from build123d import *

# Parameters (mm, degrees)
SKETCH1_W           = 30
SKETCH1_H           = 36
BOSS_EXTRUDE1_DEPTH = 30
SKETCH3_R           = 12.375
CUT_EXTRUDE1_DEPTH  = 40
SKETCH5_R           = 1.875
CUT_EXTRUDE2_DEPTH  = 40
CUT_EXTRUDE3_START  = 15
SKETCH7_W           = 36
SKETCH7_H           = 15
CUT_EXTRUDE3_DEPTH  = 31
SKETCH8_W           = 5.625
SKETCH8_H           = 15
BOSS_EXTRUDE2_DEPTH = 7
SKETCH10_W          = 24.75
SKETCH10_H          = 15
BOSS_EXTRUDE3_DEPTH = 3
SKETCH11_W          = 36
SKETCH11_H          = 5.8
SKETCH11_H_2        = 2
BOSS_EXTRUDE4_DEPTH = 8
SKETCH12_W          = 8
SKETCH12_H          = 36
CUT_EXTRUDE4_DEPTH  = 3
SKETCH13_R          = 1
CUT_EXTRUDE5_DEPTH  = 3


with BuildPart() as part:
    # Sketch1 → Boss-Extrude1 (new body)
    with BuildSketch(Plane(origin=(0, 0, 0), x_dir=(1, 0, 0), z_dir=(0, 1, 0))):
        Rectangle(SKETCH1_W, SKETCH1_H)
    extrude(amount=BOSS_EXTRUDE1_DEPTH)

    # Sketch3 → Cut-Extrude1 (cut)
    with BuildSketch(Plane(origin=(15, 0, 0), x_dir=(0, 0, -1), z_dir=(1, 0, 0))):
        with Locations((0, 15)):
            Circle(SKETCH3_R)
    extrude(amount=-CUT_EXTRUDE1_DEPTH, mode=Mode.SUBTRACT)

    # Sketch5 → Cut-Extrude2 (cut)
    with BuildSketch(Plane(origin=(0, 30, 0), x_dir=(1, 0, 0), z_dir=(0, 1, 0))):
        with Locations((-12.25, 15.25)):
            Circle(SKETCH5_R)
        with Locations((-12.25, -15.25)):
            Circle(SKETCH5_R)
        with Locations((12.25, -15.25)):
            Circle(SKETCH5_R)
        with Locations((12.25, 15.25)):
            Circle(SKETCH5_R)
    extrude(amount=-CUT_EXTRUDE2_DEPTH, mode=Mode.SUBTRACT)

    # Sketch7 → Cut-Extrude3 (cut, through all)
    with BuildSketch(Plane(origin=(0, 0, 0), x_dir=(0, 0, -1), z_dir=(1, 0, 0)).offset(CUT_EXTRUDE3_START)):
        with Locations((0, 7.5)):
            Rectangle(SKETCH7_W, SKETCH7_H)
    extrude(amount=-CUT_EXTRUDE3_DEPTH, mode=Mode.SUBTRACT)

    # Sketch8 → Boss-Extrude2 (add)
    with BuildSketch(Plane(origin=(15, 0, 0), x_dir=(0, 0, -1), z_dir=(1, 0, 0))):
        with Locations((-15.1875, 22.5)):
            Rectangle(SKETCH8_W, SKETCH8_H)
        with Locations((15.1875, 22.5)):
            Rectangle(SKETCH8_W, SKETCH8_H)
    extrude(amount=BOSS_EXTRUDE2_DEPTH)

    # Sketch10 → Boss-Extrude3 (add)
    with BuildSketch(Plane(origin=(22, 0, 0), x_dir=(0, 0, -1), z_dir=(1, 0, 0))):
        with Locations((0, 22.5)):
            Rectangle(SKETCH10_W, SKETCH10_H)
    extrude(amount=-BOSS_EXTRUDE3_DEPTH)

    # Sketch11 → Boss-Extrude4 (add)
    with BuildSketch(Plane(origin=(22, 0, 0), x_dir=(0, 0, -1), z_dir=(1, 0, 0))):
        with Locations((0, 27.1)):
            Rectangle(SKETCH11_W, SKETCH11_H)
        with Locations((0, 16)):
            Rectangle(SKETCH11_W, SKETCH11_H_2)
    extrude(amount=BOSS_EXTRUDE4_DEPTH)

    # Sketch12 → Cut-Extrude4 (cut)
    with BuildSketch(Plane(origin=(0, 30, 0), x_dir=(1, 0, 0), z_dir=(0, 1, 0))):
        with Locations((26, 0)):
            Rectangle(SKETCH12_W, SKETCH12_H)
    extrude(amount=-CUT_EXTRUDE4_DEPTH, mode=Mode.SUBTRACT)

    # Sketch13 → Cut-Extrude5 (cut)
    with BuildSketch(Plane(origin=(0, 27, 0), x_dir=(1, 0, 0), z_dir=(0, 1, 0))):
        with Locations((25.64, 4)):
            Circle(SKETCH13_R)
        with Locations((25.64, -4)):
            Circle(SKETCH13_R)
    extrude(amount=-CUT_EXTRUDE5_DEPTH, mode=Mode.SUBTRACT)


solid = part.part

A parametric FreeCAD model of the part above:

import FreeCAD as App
import Part
import Sketcher
from FreeCAD import Vector
Q = App.Units.Quantity

doc = App.newDocument("Part")
params = doc.addObject("Spreadsheet::Sheet", "Params")
for row, (alias, value) in enumerate([
    ("sketch1_width", "30 mm"),
    ("sketch1_height", "36 mm"),
    ("pad1_length", "30 mm"),
    ("sketch2_diameter", "24.75 mm"),
    ("pocket1_length", "40 mm"),
    ("sketch3_diameter", "3.75 mm"),
    ("pocket2_length", "40 mm"),
    ("sketch4_width", "15 mm"),
    ("sketch4_height", "36 mm"),
    ("sketch5_width", "15 mm"),
    ("pad2_length", "7 mm"),
    ("sketch6_width", "15 mm"),
    ("sketch6_height", "24.75 mm"),
    ("pad3_length", "3 mm"),
    ("sketch7_width", "2 mm"),
    ("sketch7_height", "36 mm"),
    ("sketch7_width2", "5.8 mm"),
    ("pad4_length", "8 mm"),
    ("sketch8_width", "8 mm"),
    ("sketch8_height", "36 mm"),
    ("pocket4_length", "3 mm"),
    ("sketch9_diameter", "2 mm"),
    ("pocket5_length", "3 mm"),
], start=1):
    params.set(f"A{row}", alias)
    params.set(f"B{row}", "=" + value)
    params.setAlias(f"B{row}", alias)

body = doc.addObject("PartDesign::Body", "Body")

# Sketch on XZ plane
sketch1 = body.newObject("Sketcher::SketchObject", "Sketch")
sketch1.AttachmentSupport = (doc.getObject("XZ_Plane"), [""])
sketch1.MapMode = "FlatFace"
sketch1.addGeometry(Part.LineSegment(Vector(-15, -18, 0), Vector(-15, 18, 0)), False)
sketch1.addGeometry(Part.LineSegment(Vector(-15, 18, 0), Vector(15, 18, 0)), False)
sketch1.addGeometry(Part.LineSegment(Vector(15, 18, 0), Vector(15, -18, 0)), False)
sketch1.addGeometry(Part.LineSegment(Vector(15, -18, 0), Vector(-15, -18, 0)), False)
sketch1.addConstraint(Sketcher.Constraint("Coincident", 0, 2, 1, 1))
sketch1.addConstraint(Sketcher.Constraint("Coincident", 1, 2, 2, 1))
sketch1.addConstraint(Sketcher.Constraint("Coincident", 2, 2, 3, 1))
sketch1.addConstraint(Sketcher.Constraint("Coincident", 3, 2, 0, 1))
sketch1.addConstraint(Sketcher.Constraint("Vertical", 0))
sketch1.addConstraint(Sketcher.Constraint("Horizontal", 1))
sketch1.addConstraint(Sketcher.Constraint("Vertical", 2))
sketch1.addConstraint(Sketcher.Constraint("Horizontal", 3))
sketch1.addConstraint(Sketcher.Constraint("Symmetric", 0, 2, 2, 2, -1, 1))
sketch1.addConstraint(Sketcher.Constraint("DistanceX", 1, 1, 1, 2, Q("30 mm")))
sketch1.addConstraint(Sketcher.Constraint("DistanceY", 0, 1, 0, 2, Q("36 mm")))
sketch1.setExpression("Constraints[9]", "Params.sketch1_width")
sketch1.setExpression("Constraints[10]", "Params.sketch1_height")
pad1 = body.newObject("PartDesign::Pad", "Pad")
pad1.Profile = sketch1
pad1.setExpression("Length", "Params.pad1_length")
pad1.Reversed = True

# Sketch on YZ plane
sketch2 = body.newObject("Sketcher::SketchObject", "Sketch001")
sketch2.AttachmentSupport = (doc.getObject("YZ_Plane"), [""])
sketch2.MapMode = "FlatFace"
sketch2.AttachmentOffset = App.Placement(Vector(0, 0, 15), App.Rotation())
sketch2.addGeometry(Part.Circle(Vector(15, 0, 0), Vector(0, 0, 1), 12), False)
sketch2.addConstraint(Sketcher.Constraint("PointOnObject", 0, 3, -1))
sketch2.addConstraint(Sketcher.Constraint("Diameter", 0, Q("24.75 mm")))
sketch2.addConstraint(Sketcher.Constraint("DistanceX", -1, 1, 0, 3, Q("15 mm")))
sketch2.setExpression("Constraints[1]", "Params.sketch2_diameter")
pocket1 = body.newObject("PartDesign::Pocket", "Pocket")
pocket1.Profile = sketch2
pocket1.setExpression("Length", "Params.pocket1_length")

# Sketch on XZ plane
sketch3 = body.newObject("Sketcher::SketchObject", "Sketch002")
sketch3.AttachmentSupport = (doc.getObject("XZ_Plane"), [""])
sketch3.MapMode = "FlatFace"
sketch3.AttachmentOffset = App.Placement(Vector(0, 0, -30), App.Rotation())
sketch3.addGeometry(Part.Circle(Vector(-12.2, -15.2, 0), Vector(0, 0, 1), 1.9), False)
sketch3.addGeometry(Part.Circle(Vector(-12.2, 15.2, 0), Vector(0, 0, 1), 1.9), False)
sketch3.addGeometry(Part.Circle(Vector(12.2, 15.2, 0), Vector(0, 0, 1), 1.9), False)
sketch3.addGeometry(Part.Circle(Vector(12.2, -15.2, 0), Vector(0, 0, 1), 1.9), False)
sketch3.addConstraint(Sketcher.Constraint("Equal", 0, 1))
sketch3.addConstraint(Sketcher.Constraint("Equal", 1, 2))
sketch3.addConstraint(Sketcher.Constraint("Equal", 2, 3))
sketch3.addConstraint(Sketcher.Constraint("Symmetric", 0, 3, 2, 3, -1, 1))
sketch3.addConstraint(Sketcher.Constraint("Symmetric", 1, 3, 3, 3, -1, 1))
sketch3.addConstraint(Sketcher.Constraint("Symmetric", 1, 3, 2, 3, -2))
sketch3.addConstraint(Sketcher.Constraint("Diameter", 0, Q("3.75 mm")))
sketch3.addConstraint(Sketcher.Constraint("DistanceY", 0, 3, 1, 3, Q("30.5 mm")))
sketch3.addConstraint(Sketcher.Constraint("DistanceX", 1, 3, 2, 3, Q("24.5 mm")))
sketch3.setExpression("Constraints[6]", "Params.sketch3_diameter")
pocket2 = body.newObject("PartDesign::Pocket", "Pocket001")
pocket2.Profile = sketch3
pocket2.setExpression("Length", "Params.pocket2_length")
pocket2.Reversed = True

# Sketch on YZ plane
sketch4 = body.newObject("Sketcher::SketchObject", "Sketch003")
sketch4.AttachmentSupport = (doc.getObject("YZ_Plane"), [""])
sketch4.MapMode = "FlatFace"
sketch4.AttachmentOffset = App.Placement(Vector(0, 0, 15), App.Rotation())
sketch4.addGeometry(Part.LineSegment(Vector(15, 18, 0), Vector(0, 18, 0)), False)
sketch4.addGeometry(Part.LineSegment(Vector(0, 18, 0), Vector(0, -18, 0)), False)
sketch4.addGeometry(Part.LineSegment(Vector(0, -18, 0), Vector(15, -18, 0)), False)
sketch4.addGeometry(Part.LineSegment(Vector(15, -18, 0), Vector(15, 18, 0)), False)
sketch4.addConstraint(Sketcher.Constraint("Coincident", 0, 2, 1, 1))
sketch4.addConstraint(Sketcher.Constraint("Coincident", 1, 2, 2, 1))
sketch4.addConstraint(Sketcher.Constraint("Coincident", 2, 2, 3, 1))
sketch4.addConstraint(Sketcher.Constraint("Coincident", 3, 2, 0, 1))
sketch4.addConstraint(Sketcher.Constraint("Horizontal", 0))
sketch4.addConstraint(Sketcher.Constraint("Vertical", 1))
sketch4.addConstraint(Sketcher.Constraint("Horizontal", 2))
sketch4.addConstraint(Sketcher.Constraint("Vertical", 3))
sketch4.addConstraint(Sketcher.Constraint("Symmetric", 0, 2, 1, 2, -1, 1))
sketch4.addConstraint(Sketcher.Constraint("DistanceX", 0, 2, 0, 1, Q("15 mm")))
sketch4.addConstraint(Sketcher.Constraint("DistanceY", 1, 2, 1, 1, Q("36 mm")))
sketch4.setExpression("Constraints[9]", "Params.sketch4_width")
sketch4.setExpression("Constraints[10]", "Params.sketch4_height")
pocket3 = body.newObject("PartDesign::Pocket", "Pocket002")
pocket3.Profile = sketch4
pocket3.Type = "ThroughAll"

# Sketch on YZ plane
sketch5 = body.newObject("Sketcher::SketchObject", "Sketch004")
sketch5.AttachmentSupport = (doc.getObject("YZ_Plane"), [""])
sketch5.MapMode = "FlatFace"
sketch5.AttachmentOffset = App.Placement(Vector(0, 0, 15), App.Rotation())
sketch5.addGeometry(Part.LineSegment(Vector(30, 18, 0), Vector(15, 18, 0)), False)
sketch5.addGeometry(Part.LineSegment(Vector(15, 18, 0), Vector(15, 12, 0)), False)
sketch5.addGeometry(Part.LineSegment(Vector(15, 12, 0), Vector(30, 12, 0)), False)
sketch5.addGeometry(Part.LineSegment(Vector(30, 12, 0), Vector(30, 18, 0)), False)
sketch5.addGeometry(Part.LineSegment(Vector(30, -12, 0), Vector(15, -12, 0)), False)
sketch5.addGeometry(Part.LineSegment(Vector(15, -12, 0), Vector(15, -18, 0)), False)
sketch5.addGeometry(Part.LineSegment(Vector(15, -18, 0), Vector(30, -18, 0)), False)
sketch5.addGeometry(Part.LineSegment(Vector(30, -18, 0), Vector(30, -12, 0)), False)
sketch5.addConstraint(Sketcher.Constraint("Coincident", 0, 2, 1, 1))
sketch5.addConstraint(Sketcher.Constraint("Coincident", 1, 2, 2, 1))
sketch5.addConstraint(Sketcher.Constraint("Coincident", 2, 2, 3, 1))
sketch5.addConstraint(Sketcher.Constraint("Coincident", 3, 2, 0, 1))
sketch5.addConstraint(Sketcher.Constraint("Coincident", 4, 2, 5, 1))
sketch5.addConstraint(Sketcher.Constraint("Coincident", 5, 2, 6, 1))
sketch5.addConstraint(Sketcher.Constraint("Coincident", 6, 2, 7, 1))
sketch5.addConstraint(Sketcher.Constraint("Coincident", 7, 2, 4, 1))
sketch5.addConstraint(Sketcher.Constraint("Horizontal", 0))
sketch5.addConstraint(Sketcher.Constraint("Vertical", 1))
sketch5.addConstraint(Sketcher.Constraint("Horizontal", 2))
sketch5.addConstraint(Sketcher.Constraint("Vertical", 3))
sketch5.addConstraint(Sketcher.Constraint("Horizontal", 4))
sketch5.addConstraint(Sketcher.Constraint("Vertical", 5))
sketch5.addConstraint(Sketcher.Constraint("Horizontal", 6))
sketch5.addConstraint(Sketcher.Constraint("Vertical", 7))
sketch5.addConstraint(Sketcher.Constraint("Symmetric", 1, 2, 4, 2, -1))
sketch5.addConstraint(Sketcher.Constraint("Symmetric", 3, 2, 6, 2, -1))
sketch5.addConstraint(Sketcher.Constraint("DistanceX", 0, 2, 0, 1, Q("15 mm")))
sketch5.addConstraint(Sketcher.Constraint("DistanceX", -1, 1, 0, 2, Q("15 mm")))
sketch5.addConstraint(Sketcher.Constraint("DistanceY", -1, 1, 0, 2, Q("18 mm")))
sketch5.addConstraint(Sketcher.Constraint("DistanceY", 1, 2, 1, 1, Q("5.625 mm")))
sketch5.setExpression("Constraints[18]", "Params.sketch5_width")
pad2 = body.newObject("PartDesign::Pad", "Pad001")
pad2.Profile = sketch5
pad2.setExpression("Length", "Params.pad2_length")

# Sketch on YZ plane
sketch6 = body.newObject("Sketcher::SketchObject", "Sketch005")
sketch6.AttachmentSupport = (doc.getObject("YZ_Plane"), [""])
sketch6.MapMode = "FlatFace"
sketch6.AttachmentOffset = App.Placement(Vector(0, 0, 22), App.Rotation())
sketch6.addGeometry(Part.LineSegment(Vector(30, 12, 0), Vector(15, 12, 0)), False)
sketch6.addGeometry(Part.LineSegment(Vector(15, 12, 0), Vector(15, -12, 0)), False)
sketch6.addGeometry(Part.LineSegment(Vector(15, -12, 0), Vector(30, -12, 0)), False)
sketch6.addGeometry(Part.LineSegment(Vector(30, -12, 0), Vector(30, 12, 0)), False)
sketch6.addConstraint(Sketcher.Constraint("Coincident", 0, 2, 1, 1))
sketch6.addConstraint(Sketcher.Constraint("Coincident", 1, 2, 2, 1))
sketch6.addConstraint(Sketcher.Constraint("Coincident", 2, 2, 3, 1))
sketch6.addConstraint(Sketcher.Constraint("Coincident", 3, 2, 0, 1))
sketch6.addConstraint(Sketcher.Constraint("Horizontal", 0))
sketch6.addConstraint(Sketcher.Constraint("Vertical", 1))
sketch6.addConstraint(Sketcher.Constraint("Horizontal", 2))
sketch6.addConstraint(Sketcher.Constraint("Vertical", 3))
sketch6.addConstraint(Sketcher.Constraint("DistanceX", 0, 2, 0, 1, Q("15 mm")))
sketch6.addConstraint(Sketcher.Constraint("DistanceX", -1, 1, 0, 2, Q("15 mm")))
sketch6.addConstraint(Sketcher.Constraint("DistanceY", 1, 2, 1, 1, Q("24.75 mm")))
sketch6.addConstraint(Sketcher.Constraint("DistanceY", -1, 1, 0, 2, Q("12.375 mm")))
sketch6.setExpression("Constraints[8]", "Params.sketch6_width")
sketch6.setExpression("Constraints[10]", "Params.sketch6_height")
pad3 = body.newObject("PartDesign::Pad", "Pad002")
pad3.Profile = sketch6
pad3.setExpression("Length", "Params.pad3_length")
pad3.Reversed = True

# Sketch on YZ plane
sketch7 = body.newObject("Sketcher::SketchObject", "Sketch006")
sketch7.AttachmentSupport = (doc.getObject("YZ_Plane"), [""])
sketch7.MapMode = "FlatFace"
sketch7.AttachmentOffset = App.Placement(Vector(0, 0, 22), App.Rotation())
sketch7.addGeometry(Part.LineSegment(Vector(30, 18, 0), Vector(24.2, 18, 0)), False)
sketch7.addGeometry(Part.LineSegment(Vector(24.2, 18, 0), Vector(24.2, -18, 0)), False)
sketch7.addGeometry(Part.LineSegment(Vector(24.2, -18, 0), Vector(30, -18, 0)), False)
sketch7.addGeometry(Part.LineSegment(Vector(30, -18, 0), Vector(30, 18, 0)), False)
sketch7.addGeometry(Part.LineSegment(Vector(17, 18, 0), Vector(15, 18, 0)), False)
sketch7.addGeometry(Part.LineSegment(Vector(15, 18, 0), Vector(15, -18, 0)), False)
sketch7.addGeometry(Part.LineSegment(Vector(15, -18, 0), Vector(17, -18, 0)), False)
sketch7.addGeometry(Part.LineSegment(Vector(17, -18, 0), Vector(17, 18, 0)), False)
sketch7.addConstraint(Sketcher.Constraint("Coincident", 0, 2, 1, 1))
sketch7.addConstraint(Sketcher.Constraint("Coincident", 1, 2, 2, 1))
sketch7.addConstraint(Sketcher.Constraint("Coincident", 2, 2, 3, 1))
sketch7.addConstraint(Sketcher.Constraint("Coincident", 3, 2, 0, 1))
sketch7.addConstraint(Sketcher.Constraint("Coincident", 4, 2, 5, 1))
sketch7.addConstraint(Sketcher.Constraint("Coincident", 5, 2, 6, 1))
sketch7.addConstraint(Sketcher.Constraint("Coincident", 6, 2, 7, 1))
sketch7.addConstraint(Sketcher.Constraint("Coincident", 7, 2, 4, 1))
sketch7.addConstraint(Sketcher.Constraint("Horizontal", 0))
sketch7.addConstraint(Sketcher.Constraint("Vertical", 1))
sketch7.addConstraint(Sketcher.Constraint("Horizontal", 2))
sketch7.addConstraint(Sketcher.Constraint("Vertical", 3))
sketch7.addConstraint(Sketcher.Constraint("Horizontal", 4))
sketch7.addConstraint(Sketcher.Constraint("Vertical", 5))
sketch7.addConstraint(Sketcher.Constraint("Horizontal", 6))
sketch7.addConstraint(Sketcher.Constraint("Vertical", 7))
sketch7.addConstraint(Sketcher.Constraint("Horizontal", 3, 2, 4, 2))
sketch7.addConstraint(Sketcher.Constraint("Horizontal", 2, 2, 5, 2))
sketch7.addConstraint(Sketcher.Constraint("DistanceX", 4, 2, 4, 1, Q("2 mm")))
sketch7.addConstraint(Sketcher.Constraint("DistanceY", 1, 2, 1, 1, Q("36 mm")))
sketch7.addConstraint(Sketcher.Constraint("DistanceX", 0, 2, 0, 1, Q("5.8 mm")))
sketch7.addConstraint(Sketcher.Constraint("DistanceY", -1, 1, 0, 2, Q("18 mm")))
sketch7.addConstraint(Sketcher.Constraint("DistanceX", -1, 1, 2, 2, Q("30 mm")))
sketch7.addConstraint(Sketcher.Constraint("DistanceX", -1, 1, 4, 2, Q("15 mm")))
sketch7.setExpression("Constraints[18]", "Params.sketch7_width")
sketch7.setExpression("Constraints[19]", "Params.sketch7_height")
sketch7.setExpression("Constraints[20]", "Params.sketch7_width2")
pad4 = body.newObject("PartDesign::Pad", "Pad003")
pad4.Profile = sketch7
pad4.setExpression("Length", "Params.pad4_length")

# Sketch on XZ plane
sketch8 = body.newObject("Sketcher::SketchObject", "Sketch007")
sketch8.AttachmentSupport = (doc.getObject("XZ_Plane"), [""])
sketch8.MapMode = "FlatFace"
sketch8.AttachmentOffset = App.Placement(Vector(0, 0, -30), App.Rotation())
sketch8.addGeometry(Part.LineSegment(Vector(22, -18, 0), Vector(22, 18, 0)), False)
sketch8.addGeometry(Part.LineSegment(Vector(22, 18, 0), Vector(30, 18, 0)), False)
sketch8.addGeometry(Part.LineSegment(Vector(30, 18, 0), Vector(30, -18, 0)), False)
sketch8.addGeometry(Part.LineSegment(Vector(30, -18, 0), Vector(22, -18, 0)), False)
sketch8.addConstraint(Sketcher.Constraint("Coincident", 0, 2, 1, 1))
sketch8.addConstraint(Sketcher.Constraint("Coincident", 1, 2, 2, 1))
sketch8.addConstraint(Sketcher.Constraint("Coincident", 2, 2, 3, 1))
sketch8.addConstraint(Sketcher.Constraint("Coincident", 3, 2, 0, 1))
sketch8.addConstraint(Sketcher.Constraint("Vertical", 0))
sketch8.addConstraint(Sketcher.Constraint("Horizontal", 1))
sketch8.addConstraint(Sketcher.Constraint("Vertical", 2))
sketch8.addConstraint(Sketcher.Constraint("Horizontal", 3))
sketch8.addConstraint(Sketcher.Constraint("DistanceX", 1, 1, 1, 2, Q("8 mm")))
sketch8.addConstraint(Sketcher.Constraint("DistanceY", 0, 1, 0, 2, Q("36 mm")))
sketch8.addConstraint(Sketcher.Constraint("DistanceX", -1, 1, 0, 2, Q("22 mm")))
sketch8.addConstraint(Sketcher.Constraint("DistanceY", -1, 1, 0, 2, Q("18 mm")))
sketch8.setExpression("Constraints[8]", "Params.sketch8_width")
sketch8.setExpression("Constraints[9]", "Params.sketch8_height")
pocket4 = body.newObject("PartDesign::Pocket", "Pocket003")
pocket4.Profile = sketch8
pocket4.setExpression("Length", "Params.pocket4_length")
pocket4.Reversed = True

# Sketch on XZ plane
sketch9 = body.newObject("Sketcher::SketchObject", "Sketch008")
sketch9.AttachmentSupport = (doc.getObject("XZ_Plane"), [""])
sketch9.MapMode = "FlatFace"
sketch9.AttachmentOffset = App.Placement(Vector(0, 0, -27), App.Rotation())
sketch9.addGeometry(Part.Circle(Vector(25.6, -4, 0), Vector(0, 0, 1), 1), False)
sketch9.addGeometry(Part.Circle(Vector(25.6, 4, 0), Vector(0, 0, 1), 1), False)
sketch9.addConstraint(Sketcher.Constraint("Equal", 0, 1))
sketch9.addConstraint(Sketcher.Constraint("Symmetric", 0, 3, 1, 3, -1))
sketch9.addConstraint(Sketcher.Constraint("Diameter", 0, Q("2 mm")))
sketch9.addConstraint(Sketcher.Constraint("DistanceY", 0, 3, -1, 1, Q("4 mm")))
sketch9.addConstraint(Sketcher.Constraint("DistanceX", -1, 1, 0, 3, Q("25.64 mm")))
sketch9.setExpression("Constraints[2]", "Params.sketch9_diameter")
pocket5 = body.newObject("PartDesign::Pocket", "Pocket004")
pocket5.Profile = sketch9
pocket5.setExpression("Length", "Params.pocket5_length")
pocket5.Reversed = True

doc.recompute()
